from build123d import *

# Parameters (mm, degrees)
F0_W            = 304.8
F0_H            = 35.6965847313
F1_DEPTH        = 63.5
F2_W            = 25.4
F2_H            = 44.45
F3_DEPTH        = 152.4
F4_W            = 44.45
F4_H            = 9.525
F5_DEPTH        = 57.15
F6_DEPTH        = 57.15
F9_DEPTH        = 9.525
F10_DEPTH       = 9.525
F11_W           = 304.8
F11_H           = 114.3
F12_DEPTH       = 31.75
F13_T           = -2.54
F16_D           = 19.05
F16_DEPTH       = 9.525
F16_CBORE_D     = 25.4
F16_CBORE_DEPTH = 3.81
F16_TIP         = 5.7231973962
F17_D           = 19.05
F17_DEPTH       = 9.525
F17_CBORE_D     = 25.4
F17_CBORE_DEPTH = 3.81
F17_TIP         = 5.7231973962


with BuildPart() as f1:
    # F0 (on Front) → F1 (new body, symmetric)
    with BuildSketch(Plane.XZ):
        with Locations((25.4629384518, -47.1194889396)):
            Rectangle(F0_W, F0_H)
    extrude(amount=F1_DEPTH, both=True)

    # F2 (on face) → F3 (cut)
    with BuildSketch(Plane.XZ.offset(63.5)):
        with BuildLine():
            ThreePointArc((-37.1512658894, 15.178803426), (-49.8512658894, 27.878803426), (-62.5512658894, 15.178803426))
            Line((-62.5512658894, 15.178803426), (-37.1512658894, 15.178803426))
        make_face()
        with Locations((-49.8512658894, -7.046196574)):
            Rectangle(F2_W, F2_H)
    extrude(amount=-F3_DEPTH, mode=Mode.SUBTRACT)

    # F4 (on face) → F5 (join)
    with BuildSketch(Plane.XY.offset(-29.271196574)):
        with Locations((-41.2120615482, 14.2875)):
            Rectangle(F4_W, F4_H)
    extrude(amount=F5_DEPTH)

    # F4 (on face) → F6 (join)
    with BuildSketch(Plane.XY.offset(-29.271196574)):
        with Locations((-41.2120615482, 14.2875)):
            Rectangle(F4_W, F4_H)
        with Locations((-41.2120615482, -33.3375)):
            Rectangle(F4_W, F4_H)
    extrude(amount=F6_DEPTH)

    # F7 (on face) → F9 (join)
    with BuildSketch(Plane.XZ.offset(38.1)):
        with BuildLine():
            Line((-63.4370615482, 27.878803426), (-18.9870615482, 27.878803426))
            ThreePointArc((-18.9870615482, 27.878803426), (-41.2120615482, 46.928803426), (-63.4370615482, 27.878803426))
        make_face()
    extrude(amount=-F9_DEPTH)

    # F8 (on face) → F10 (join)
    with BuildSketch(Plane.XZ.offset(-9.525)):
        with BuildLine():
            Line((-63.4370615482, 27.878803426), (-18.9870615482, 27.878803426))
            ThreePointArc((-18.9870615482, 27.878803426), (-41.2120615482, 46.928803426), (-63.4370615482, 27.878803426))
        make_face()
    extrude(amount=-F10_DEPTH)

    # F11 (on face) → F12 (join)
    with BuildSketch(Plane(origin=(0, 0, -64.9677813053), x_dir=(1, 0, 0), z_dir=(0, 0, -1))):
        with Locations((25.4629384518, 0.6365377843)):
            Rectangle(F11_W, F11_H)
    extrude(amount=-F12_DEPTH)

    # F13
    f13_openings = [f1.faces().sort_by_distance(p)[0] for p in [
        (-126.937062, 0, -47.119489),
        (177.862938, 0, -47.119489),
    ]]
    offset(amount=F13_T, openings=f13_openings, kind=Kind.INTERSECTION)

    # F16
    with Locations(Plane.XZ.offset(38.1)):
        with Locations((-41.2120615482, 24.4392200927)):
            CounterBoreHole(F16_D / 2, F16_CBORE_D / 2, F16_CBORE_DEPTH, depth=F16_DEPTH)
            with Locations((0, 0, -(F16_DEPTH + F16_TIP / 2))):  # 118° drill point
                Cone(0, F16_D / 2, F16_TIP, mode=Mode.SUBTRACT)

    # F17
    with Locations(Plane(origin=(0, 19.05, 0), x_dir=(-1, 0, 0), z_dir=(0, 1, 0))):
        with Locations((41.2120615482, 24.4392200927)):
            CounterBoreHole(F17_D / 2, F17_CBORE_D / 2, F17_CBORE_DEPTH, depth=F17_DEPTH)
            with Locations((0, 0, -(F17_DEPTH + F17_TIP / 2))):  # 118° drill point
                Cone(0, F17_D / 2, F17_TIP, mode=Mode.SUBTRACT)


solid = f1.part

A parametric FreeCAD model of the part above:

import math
import FreeCAD as App
import Part
import Sketcher
from FreeCAD import Vector
Q = App.Units.Quantity


def faces_at(feature, points):
    """Names of the faces that lie closest to the given points."""
    faces = feature.Shape.Faces
    near = lambda p: min(range(len(faces)), key=lambda i: faces[i].distToShape(Part.Vertex(*p))[0])
    return sorted({f"Face{near(p) + 1}" for p in points})


def add_polygon(sketch, points):
    """Adds a closed chain of lines whose ends are joined by coincident constraints."""
    first, n = sketch.GeometryCount, len(points)
    for a, b in zip(points, points[1:] + points[:1]):
        sketch.addGeometry(Part.LineSegment(App.Vector(*a, 0), App.Vector(*b, 0)), False)
    for i in range(n):
        sketch.addConstraint(Sketcher.Constraint("Coincident", first + i, 2, first + (i + 1) % n, 1))

doc = App.newDocument("Part")
params = doc.addObject("Spreadsheet::Sheet", "Params")
for row, (alias, value) in enumerate([
    ("sketch1_width", "12 in"),
    ("pad1_length", "5 in"),
    ("sketch2_radius", "0.5 in"),
    ("sketch2_height", "1.75 in"),
    ("pocket1_length", "6 in"),
    ("sketch3_width", "1.75 in"),
    ("sketch3_height", "0.375 in"),
    ("pad2_length", "2.25 in"),
    ("sketch4_width", "1.75 in"),
    ("sketch4_height", "0.375 in"),
    ("pad3_length", "2.25 in"),
    ("sketch5_width", "1.75 in"),
    ("pad4_length", "0.375 in"),
    ("sketch6_width", "1.75 in"),
    ("pad5_length", "0.375 in"),
    ("sketch7_width", "12 in"),
    ("sketch7_height", "4.5 in"),
    ("pad6_length", "1.25 in"),
    ("thickness_wall", "0.1 in"),
    ("sketch8_diameter", "0.75 in"),
    ("hole_diameter", "0.75 in"),
    ("hole_depth", "0.375 in"),
    ("hole_cbore_diameter", "1 in"),
    ("hole_cbore_depth", "0.15 in"),
    ("sketch9_diameter", "0.75 in"),
    ("hole2_diameter", "0.75 in"),
    ("hole2_depth", "0.375 in"),
    ("hole2_cbore_diameter", "1 in"),
    ("hole2_cbore_depth", "0.15 in"),
], start=1):
    params.set(f"A{row}", alias)
    params.set(f"B{row}", "=" + value)
    params.setAlias(f"B{row}", alias)

body = doc.addObject("PartDesign::Body", "Body")

# Sketch on XZ plane
sketch1 = body.newObject("Sketcher::SketchObject", "Sketch")
sketch1.AttachmentSupport = (doc.getObject("XZ_Plane"), [""])
sketch1.MapMode = "FlatFace"
add_polygon(sketch1, [(-126.937062, -29.271197), (-126.937062, -64.967781), (177.862938, -64.967781), (177.862938, -29.271197)])  # lines 0-3
sketch1.addConstraint([
    Sketcher.Constraint("Vertical", 0),
    Sketcher.Constraint("Horizontal", 1),
    Sketcher.Constraint("Vertical", 2),
    Sketcher.Constraint("Horizontal", 3),
    Sketcher.Constraint("DistanceX", 1, 1, 1, 2, Q("12 in")),
    Sketcher.Constraint("DistanceY", 0, 2, 0, 1, Q("35.696585 mm")),
    Sketcher.Constraint("DistanceX", 0, 2, -1, 1, Q("126.937062 mm")),
    Sketcher.Constraint("DistanceY", 0, 2, -1, 1, Q("64.967781 mm")),
])
sketch1.setExpression("Constraints[8]", "Params.sketch1_width")
pad1 = body.newObject("PartDesign::Pad", "Pad")
pad1.Profile = sketch1
pad1.setExpression("Length", "Params.pad1_length")
pad1.Midplane = True

# Sketch on XZ plane
sketch2 = body.newObject("Sketcher::SketchObject", "Sketch001")
sketch2.AttachmentSupport = (doc.getObject("XZ_Plane"), [""])
sketch2.MapMode = "FlatFace"
sketch2.AttachmentOffset = App.Placement(Vector(0, 0, 2.5 * 25.4), App.Rotation())
sketch2.addGeometry([
    Part.ArcOfCircle(Part.Circle(Vector(-49.851266, 15.178803, 0), Vector(0, 0, 1), 12.7), math.radians(0), math.radians(180)),
    Part.LineSegment(Vector(-62.551266, 15.178803, 0), Vector(-62.551266, -29.271197, 0)),
    Part.LineSegment(Vector(-62.551266, -29.271197, 0), Vector(-37.151266, -29.271197, 0)),
    Part.LineSegment(Vector(-37.151266, -29.271197, 0), Vector(-37.151266, 15.178803, 0)),
], False)
sketch2.addConstraint([
    Sketcher.Constraint("Tangent", 0, 2, 1, 1),
    Sketcher.Constraint("Coincident", 1, 2, 2, 1),
    Sketcher.Constraint("Coincident", 2, 2, 3, 1),
    Sketcher.Constraint("Tangent", 3, 2, 0, 1),
    Sketcher.Constraint("Vertical", 1),
    Sketcher.Constraint("Horizontal", 2),
    Sketcher.Constraint("Vertical", 3),
    Sketcher.Constraint("Radius", 0, Q("0.5 in")),
    Sketcher.Constraint("DistanceY", 1, 2, 1, 1, Q("1.75 in")),
    Sketcher.Constraint("DistanceX", 0, 3, -1, 1, Q("49.851266 mm")),
    Sketcher.Constraint("DistanceY", -1, 1, 0, 3, Q("15.178803 mm")),
])
sketch2.setExpression("Constraints[7]", "Params.sketch2_radius")
sketch2.setExpression("Constraints[8]", "Params.sketch2_height")
pocket1 = body.newObject("PartDesign::Pocket", "Pocket")
pocket1.Profile = sketch2
pocket1.setExpression("Length", "Params.pocket1_length")

# Sketch on XY plane
sketch3 = body.newObject("Sketcher::SketchObject", "Sketch002")
sketch3.AttachmentSupport = (doc.getObject("XY_Plane"), [""])
sketch3.MapMode = "FlatFace"
sketch3.AttachmentOffset = App.Placement(Vector(0, 0, -29.271197), App.Rotation())
add_polygon(sketch3, [(-63.437062, 19.05), (-63.437062, 9.525), (-18.987062, 9.525), (-18.987062, 19.05)])  # lines 0-3
sketch3.addConstraint([
    Sketcher.Constraint("Vertical", 0),
    Sketcher.Constraint("Horizontal", 1),
    Sketcher.Constraint("Vertical", 2),
    Sketcher.Constraint("Horizontal", 3),
    Sketcher.Constraint("DistanceX", 1, 1, 1, 2, Q("1.75 in")),
    Sketcher.Constraint("DistanceY", 0, 2, 0, 1, Q("0.375 in")),
    Sketcher.Constraint("DistanceY", -1, 1, 2, 2, Q("0.75 in")),
    Sketcher.Constraint("DistanceX", 0, 2, -1, 1, Q("63.437062 mm")),
])
sketch3.setExpression("Constraints[8]", "Params.sketch3_width")
sketch3.setExpression("Constraints[9]", "Params.sketch3_height")
pad2 = body.newObject("PartDesign::Pad", "Pad001")
pad2.Profile = sketch3
pad2.setExpression("Length", "Params.pad2_length")

# Sketch on XY plane
sketch4 = body.newObject("Sketcher::SketchObject", "Sketch003")
sketch4.AttachmentSupport = (doc.getObject("XY_Plane"), [""])
sketch4.MapMode = "FlatFace"
sketch4.AttachmentOffset = App.Placement(Vector(0, 0, -29.271197), App.Rotation())
add_polygon(sketch4, [(-63.437062, 19.05), (-63.437062, 9.525), (-18.987062, 9.525), (-18.987062, 19.05)])  # lines 0-3
add_polygon(sketch4, [(-63.437062, -28.575), (-63.437062, -38.1), (-18.987062, -38.1), (-18.987062, -28.575)])  # lines 4-7
sketch4.addConstraint([
    Sketcher.Constraint("Vertical", 0),
    Sketcher.Constraint("Horizontal", 1),
    Sketcher.Constraint("Vertical", 2),
    Sketcher.Constraint("Horizontal", 3),
    Sketcher.Constraint("Vertical", 4),
    Sketcher.Constraint("Horizontal", 5),
    Sketcher.Constraint("Vertical", 6),
    Sketcher.Constraint("Horizontal", 7),
    Sketcher.Constraint("Vertical", 3, 2, 4, 2),
    Sketcher.Constraint("Vertical", 2, 2, 5, 2),
    Sketcher.Constraint("Equal", 2, 4),
    Sketcher.Constraint("DistanceX", 1, 1, 1, 2, Q("1.75 in")),
    Sketcher.Constraint("DistanceY", 4, 2, -1, 1, Q("1.5 in")),
    Sketcher.Constraint("DistanceY", 6, 2, 1, 2, Q("1.5 in")),
    Sketcher.Constraint("DistanceY", 0, 2, 0, 1, Q("0.375 in")),
    Sketcher.Constraint("DistanceX", 0, 2, -1, 1, Q("63.437062 mm")),
])
sketch4.setExpression("Constraints[19]", "Params.sketch4_width")
sketch4.setExpression("Constraints[22]", "Params.sketch4_height")
pad3 = body.newObject("PartDesign::Pad", "Pad002")
pad3.Profile = sketch4
pad3.setExpression("Length", "Params.pad3_length")

# Sketch on XZ plane
sketch5 = body.newObject("Sketcher::SketchObject", "Sketch004")
sketch5.AttachmentSupport = (doc.getObject("XZ_Plane"), [""])
sketch5.MapMode = "FlatFace"
sketch5.AttachmentOffset = App.Placement(Vector(0, 0, 1.5 * 25.4), App.Rotation())
sketch5.addGeometry([
    Part.LineSegment(Vector(-63.437062, 27.878803, 0), Vector(-18.987062, 27.878803, 0)),
    Part.ArcOfCircle(Part.Circle(Vector(-41.212062, 24.43922, 0), Vector(0, 0, 1), 22.489583), math.radians(8.797411), math.radians(171.202589)),
], False)
sketch5.addConstraint([
    Sketcher.Constraint("Coincident", 0, 1, 1, 2),
    Sketcher.Constraint("Coincident", 1, 1, 0, 2),
    Sketcher.Constraint("Horizontal", 0),
    Sketcher.Constraint("DistanceX", 0, 1, 0, 2, Q("1.75 in")),
    Sketcher.Constraint("Radius", 1, Q("22.489583 mm")),
    Sketcher.Constraint("DistanceX", 1, 3, -1, 1, Q("41.212062 mm")),
    Sketcher.Constraint("DistanceY", -1, 1, 1, 3, Q("24.43922 mm")),
])
sketch5.setExpression("Constraints[3]", "Params.sketch5_width")
pad4 = body.newObject("PartDesign::Pad", "Pad003")
pad4.Profile = sketch5
pad4.setExpression("Length", "Params.pad4_length")
pad4.Reversed = True

# Sketch on XZ plane
sketch6 = body.newObject("Sketcher::SketchObject", "Sketch005")
sketch6.AttachmentSupport = (doc.getObject("XZ_Plane"), [""])
sketch6.MapMode = "FlatFace"
sketch6.AttachmentOffset = App.Placement(Vector(0, 0, -0.375 * 25.4), App.Rotation())
sketch6.addGeometry([
    Part.LineSegment(Vector(-63.437062, 27.878803, 0), Vector(-18.987062, 27.878803, 0)),
    Part.ArcOfCircle(Part.Circle(Vector(-41.212062, 24.43922, 0), Vector(0, 0, 1), 22.489583), math.radians(8.797411), math.radians(171.202589)),
], False)
sketch6.addConstraint([
    Sketcher.Constraint("Coincident", 0, 1, 1, 2),
    Sketcher.Constraint("Coincident", 1, 1, 0, 2),
    Sketcher.Constraint("Horizontal", 0),
    Sketcher.Constraint("DistanceX", 0, 1, 0, 2, Q("1.75 in")),
    Sketcher.Constraint("Radius", 1, Q("22.489583 mm")),
    Sketcher.Constraint("DistanceX", 1, 3, -1, 1, Q("41.212062 mm")),
    Sketcher.Constraint("DistanceY", -1, 1, 1, 3, Q("24.43922 mm")),
])
sketch6.setExpression("Constraints[3]", "Params.sketch6_width")
pad5 = body.newObject("PartDesign::Pad", "Pad004")
pad5.Profile = sketch6
pad5.setExpression("Length", "Params.pad5_length")
pad5.Reversed = True

# Sketch on XY plane
sketch7 = body.newObject("Sketcher::SketchObject", "Sketch006")
sketch7.AttachmentSupport = (doc.getObject("XY_Plane"), [""])
sketch7.MapMode = "FlatFace"
sketch7.AttachmentOffset = App.Placement(Vector(0, 0, -64.967781), App.Rotation())
add_polygon(sketch7, [(-126.937062, -57.786538), (-126.937062, 56.513462), (177.862938, 56.513462), (177.862938, -57.786538)])  # lines 0-3
sketch7.addConstraint([
    Sketcher.Constraint("Vertical", 0),
    Sketcher.Constraint("Horizontal", 1),
    Sketcher.Constraint("Vertical", 2),
    Sketcher.Constraint("Horizontal", 3),
    Sketcher.Constraint("DistanceX", 1, 1, 1, 2, Q("12 in")),
    Sketcher.Constraint("DistanceY", 0, 1, 0, 2, Q("4.5 in")),
    Sketcher.Constraint("DistanceX", 0, 2, -1, 1, Q("126.937062 mm")),
    Sketcher.Constraint("DistanceY", -1, 1, 0, 2, Q("56.513462 mm")),
])
sketch7.setExpression("Constraints[8]", "Params.sketch7_width")
sketch7.setExpression("Constraints[9]", "Params.sketch7_height")
pad6 = body.newObject("PartDesign::Pad", "Pad005")
pad6.Profile = sketch7
pad6.setExpression("Length", "Params.pad6_length")
doc.recompute()

thickness = body.newObject("PartDesign::Thickness", "Thickness")
thickness.Base = (pad6, faces_at(pad6, [(-126.937, 0, -47.119), (177.863, 0, -47.119)]))
thickness.setExpression("Value", "Params.thickness_wall")
thickness.Reversed = True
thickness.Join = "Intersection"

# Sketch on XZ plane
sketch8 = body.newObject("Sketcher::SketchObject", "Sketch007")
sketch8.AttachmentSupport = (doc.getObject("XZ_Plane"), [""])
sketch8.MapMode = "FlatFace"
sketch8.AttachmentOffset = App.Placement(Vector(0, 0, 1.5 * 25.4), App.Rotation())
sketch8.addGeometry(Part.Circle(Vector(-41.212062, 24.43922, 0), Vector(0, 0, 1), 9.525), False)
sketch8.addConstraint([
    Sketcher.Constraint("Diameter", 0, Q("0.75 in")),
    Sketcher.Constraint("DistanceX", 0, 3, -1, 1, Q("41.212062 mm")),
    Sketcher.Constraint("DistanceY", -1, 1, 0, 3, Q("24.43922 mm")),
])
sketch8.setExpression("Constraints[0]", "Params.sketch8_diameter")
doc.recompute()
hole = body.newObject("PartDesign::Hole", "Hole")
hole.Profile = sketch8
hole.ThreadType = "None"
hole.setExpression("Diameter", "Params.hole_diameter")
hole.DepthType = "Dimension"
hole.setExpression("Depth", "Params.hole_depth")
hole.DrillPoint = "Angled"
hole.DrillPointAngle = 118
hole.HoleCutType = "Counterbore"
hole.setExpression("HoleCutDiameter", "Params.hole_cbore_diameter")
hole.setExpression("HoleCutDepth", "Params.hole_cbore_depth")

# Sketch on XZ plane
sketch9 = body.newObject("Sketcher::SketchObject", "Sketch008")
sketch9.AttachmentSupport = (doc.getObject("XZ_Plane"), [""])
sketch9.MapMode = "FlatFace"
sketch9.AttachmentOffset = App.Placement(Vector(0, 0, -0.75 * 25.4), App.Rotation())
sketch9.addGeometry(Part.Circle(Vector(-41.212062, 24.43922, 0), Vector(0, 0, 1), 9.525), False)
sketch9.addConstraint([
    Sketcher.Constraint("Diameter", 0, Q("0.75 in")),
    Sketcher.Constraint("DistanceX", 0, 3, -1, 1, Q("41.212062 mm")),
    Sketcher.Constraint("DistanceY", -1, 1, 0, 3, Q("24.43922 mm")),
])
sketch9.setExpression("Constraints[0]", "Params.sketch9_diameter")
doc.recompute()
hole2 = body.newObject("PartDesign::Hole", "Hole001")
hole2.Profile = sketch9
hole2.ThreadType = "None"
hole2.setExpression("Diameter", "Params.hole2_diameter")
hole2.DepthType = "Dimension"
hole2.setExpression("Depth", "Params.hole2_depth")
hole2.DrillPoint = "Angled"
hole2.DrillPointAngle = 118
hole2.HoleCutType = "Counterbore"
hole2.setExpression("HoleCutDiameter", "Params.hole2_cbore_diameter")
hole2.setExpression("HoleCutDepth", "Params.hole2_cbore_depth")
hole2.Reversed = True

doc.recompute()
